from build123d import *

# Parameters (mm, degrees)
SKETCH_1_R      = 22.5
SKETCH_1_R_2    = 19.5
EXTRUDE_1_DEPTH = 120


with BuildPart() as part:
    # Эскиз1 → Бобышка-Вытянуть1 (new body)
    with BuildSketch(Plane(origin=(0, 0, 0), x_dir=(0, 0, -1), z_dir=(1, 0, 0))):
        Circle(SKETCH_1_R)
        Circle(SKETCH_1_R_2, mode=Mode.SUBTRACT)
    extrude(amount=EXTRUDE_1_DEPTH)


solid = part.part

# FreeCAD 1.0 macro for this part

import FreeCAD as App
import Part
import Sketcher

V = App.Vector
Q = App.Units.Quantity

doc = App.newDocument("Part")
body = doc.addObject("PartDesign::Body", "Body")

sketch1 = body.newObject("Sketcher::SketchObject", "Sketch")
sketch1.AttachmentSupport = (doc.getObject("YZ_Plane"), [""])
sketch1.MapMode = "FlatFace"
sketch1.addGeometry(Part.Circle(V(0, 0, 0), V(0, 0, 1), 22.5), False)
sketch1.addGeometry(Part.Circle(V(0, 0, 0), V(0, 0, 1), 19.5), False)
sketch1.addConstraint(Sketcher.Constraint("Coincident", 0, 3, -1, 1))
sketch1.addConstraint(Sketcher.Constraint("Coincident", 1, 3, -1, 1))
sketch1.addConstraint(Sketcher.Constraint("Diameter", 0, Q("45 mm")))
sketch1.addConstraint(Sketcher.Constraint("Diameter", 1, Q("39 mm")))
pad1 = body.newObject("PartDesign::Pad", "Pad")
pad1.Profile = sketch1
pad1.Length = 120

doc.recompute()
